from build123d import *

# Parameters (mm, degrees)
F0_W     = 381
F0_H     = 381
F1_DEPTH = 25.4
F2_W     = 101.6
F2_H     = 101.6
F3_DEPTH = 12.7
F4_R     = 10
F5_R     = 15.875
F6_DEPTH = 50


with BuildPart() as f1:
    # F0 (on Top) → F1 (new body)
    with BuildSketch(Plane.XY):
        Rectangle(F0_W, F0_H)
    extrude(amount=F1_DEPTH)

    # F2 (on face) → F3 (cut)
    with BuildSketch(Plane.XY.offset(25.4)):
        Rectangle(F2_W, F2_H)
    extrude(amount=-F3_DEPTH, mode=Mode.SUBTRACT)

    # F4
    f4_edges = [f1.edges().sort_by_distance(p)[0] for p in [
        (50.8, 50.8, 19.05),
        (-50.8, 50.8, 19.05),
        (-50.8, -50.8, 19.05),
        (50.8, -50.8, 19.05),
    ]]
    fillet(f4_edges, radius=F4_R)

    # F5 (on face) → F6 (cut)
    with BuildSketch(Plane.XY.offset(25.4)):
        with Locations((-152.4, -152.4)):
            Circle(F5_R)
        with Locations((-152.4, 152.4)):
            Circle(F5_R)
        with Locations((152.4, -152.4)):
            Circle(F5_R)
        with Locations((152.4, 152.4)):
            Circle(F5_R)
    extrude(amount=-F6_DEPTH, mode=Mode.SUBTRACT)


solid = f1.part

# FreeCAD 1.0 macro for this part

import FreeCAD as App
import Part
import Sketcher
from FreeCAD import Vector
Q = App.Units.Quantity


def edges_at(feature, points):
    """Names of the edges that pass closest to the given points."""
    edges = feature.Shape.Edges
    near = lambda p: min(range(len(edges)), key=lambda i: edges[i].distToShape(Part.Vertex(*p))[0])
    return sorted({f"Edge{near(p) + 1}" for p in points})

doc = App.newDocument("Part")
body = doc.addObject("PartDesign::Body", "Body")

# Sketch on XY plane
sketch1 = doc.addObject("Sketcher::SketchObject", "Sketch")
body.addObject(sketch1)
sketch1.AttachmentSupport = (doc.XY_Plane, [""])
sketch1.MapMode = "FlatFace"
sketch1.addGeometry([
    Part.LineSegment(Vector(-190, 190, 0), Vector(-190, -190, 0)),
    Part.LineSegment(Vector(-190, -190, 0), Vector(190, -190, 0)),
    Part.LineSegment(Vector(190, -190, 0), Vector(190, 190, 0)),
    Part.LineSegment(Vector(190, 190, 0), Vector(-190, 190, 0)),
], False)
sketch1.addConstraint([
    Sketcher.Constraint("Coincident", 0, 2, 1, 1),
    Sketcher.Constraint("Coincident", 1, 2, 2, 1),
    Sketcher.Constraint("Coincident", 2, 2, 3, 1),
    Sketcher.Constraint("Coincident", 3, 2, 0, 1),
    Sketcher.Constraint("Vertical", 0),
    Sketcher.Constraint("Horizontal", 1),
    Sketcher.Constraint("Vertical", 2),
    Sketcher.Constraint("Horizontal", 3),
    Sketcher.Constraint("Symmetric", 0, 2, 2, 2, -1, 1),
    Sketcher.Constraint("Equal", 3, 0),
    Sketcher.Constraint("DistanceX", 1, 1, 1, 2, Q("15 in")),
])
pad1 = doc.addObject("PartDesign::Pad", "Pad")
body.addObject(pad1)
pad1.Profile = sketch1
pad1.Length = Q("1 in")

# Sketch on XY plane
sketch2 = doc.addObject("Sketcher::SketchObject", "Sketch001")
body.addObject(sketch2)
sketch2.AttachmentSupport = (doc.XY_Plane, [""])
sketch2.MapMode = "FlatFace"
sketch2.AttachmentOffset = App.Placement(Vector(0, 0, 1 * 25.4), App.Rotation())
sketch2.addGeometry([
    Part.LineSegment(Vector(-51, 51, 0), Vector(-51, -51, 0)),
    Part.LineSegment(Vector(-51, -51, 0), Vector(51, -51, 0)),
    Part.LineSegment(Vector(51, -51, 0), Vector(51, 51, 0)),
    Part.LineSegment(Vector(51, 51, 0), Vector(-51, 51, 0)),
], False)
sketch2.addConstraint([
    Sketcher.Constraint("Coincident", 0, 2, 1, 1),
    Sketcher.Constraint("Coincident", 1, 2, 2, 1),
    Sketcher.Constraint("Coincident", 2, 2, 3, 1),
    Sketcher.Constraint("Coincident", 3, 2, 0, 1),
    Sketcher.Constraint("Vertical", 0),
    Sketcher.Constraint("Horizontal", 1),
    Sketcher.Constraint("Vertical", 2),
    Sketcher.Constraint("Horizontal", 3),
    Sketcher.Constraint("Symmetric", 0, 2, 2, 2, -1, 1),
    Sketcher.Constraint("Equal", 3, 0),
    Sketcher.Constraint("DistanceX", 1, 1, 1, 2, Q("4 in")),
])
pocket1 = doc.addObject("PartDesign::Pocket", "Pocket")
body.addObject(pocket1)
pocket1.Profile = sketch2
pocket1.Length = Q("0.5 in")
doc.recompute()

fillet = doc.addObject("PartDesign::Fillet", "Fillet")
body.addObject(fillet)
fillet.Base = (pocket1, edges_at(pocket1, [
    (50.8, 50.8, 19.05),
    (-50.8, 50.8, 19.05),
    (-50.8, -50.8, 19.05),
    (50.8, -50.8, 19.05),
]))
fillet.Radius = 10

# Sketch on XY plane
sketch3 = doc.addObject("Sketcher::SketchObject", "Sketch002")
body.addObject(sketch3)
sketch3.AttachmentSupport = (doc.XY_Plane, [""])
sketch3.MapMode = "FlatFace"
sketch3.AttachmentOffset = App.Placement(Vector(0, 0, 1 * 25.4), App.Rotation())
sketch3.addGeometry([
    Part.Circle(Vector(-152, -152, 0), Vector(0, 0, 1), 16),
    Part.Circle(Vector(-152, 152, 0), Vector(0, 0, 1), 16),
    Part.Circle(Vector(152, -152, 0), Vector(0, 0, 1), 16),
    Part.Circle(Vector(152, 152, 0), Vector(0, 0, 1), 16),
], False)
sketch3.addConstraint([
    Sketcher.Constraint("Equal", 0, 1),
    Sketcher.Constraint("Equal", 1, 2),
    Sketcher.Constraint("Equal", 2, 3),
    Sketcher.Constraint("Symmetric", 1, 3, 2, 3, -1, 1),
    Sketcher.Constraint("Symmetric", 0, 3, 3, 3, -1, 1),
    Sketcher.Constraint("Symmetric", 0, 3, 2, 3, -2),
    Sketcher.Constraint("Diameter", 0, Q("1.25 in")),
    Sketcher.Constraint("DistanceX", 0, 3, -1, 1, Q("6 in")),
    Sketcher.Constraint("DistanceY", 0, 3, -1, 1, Q("6 in")),
])
pocket2 = doc.addObject("PartDesign::Pocket", "Pocket001")
body.addObject(pocket2)
pocket2.Profile = sketch3
pocket2.Length = 50

doc.recompute()
